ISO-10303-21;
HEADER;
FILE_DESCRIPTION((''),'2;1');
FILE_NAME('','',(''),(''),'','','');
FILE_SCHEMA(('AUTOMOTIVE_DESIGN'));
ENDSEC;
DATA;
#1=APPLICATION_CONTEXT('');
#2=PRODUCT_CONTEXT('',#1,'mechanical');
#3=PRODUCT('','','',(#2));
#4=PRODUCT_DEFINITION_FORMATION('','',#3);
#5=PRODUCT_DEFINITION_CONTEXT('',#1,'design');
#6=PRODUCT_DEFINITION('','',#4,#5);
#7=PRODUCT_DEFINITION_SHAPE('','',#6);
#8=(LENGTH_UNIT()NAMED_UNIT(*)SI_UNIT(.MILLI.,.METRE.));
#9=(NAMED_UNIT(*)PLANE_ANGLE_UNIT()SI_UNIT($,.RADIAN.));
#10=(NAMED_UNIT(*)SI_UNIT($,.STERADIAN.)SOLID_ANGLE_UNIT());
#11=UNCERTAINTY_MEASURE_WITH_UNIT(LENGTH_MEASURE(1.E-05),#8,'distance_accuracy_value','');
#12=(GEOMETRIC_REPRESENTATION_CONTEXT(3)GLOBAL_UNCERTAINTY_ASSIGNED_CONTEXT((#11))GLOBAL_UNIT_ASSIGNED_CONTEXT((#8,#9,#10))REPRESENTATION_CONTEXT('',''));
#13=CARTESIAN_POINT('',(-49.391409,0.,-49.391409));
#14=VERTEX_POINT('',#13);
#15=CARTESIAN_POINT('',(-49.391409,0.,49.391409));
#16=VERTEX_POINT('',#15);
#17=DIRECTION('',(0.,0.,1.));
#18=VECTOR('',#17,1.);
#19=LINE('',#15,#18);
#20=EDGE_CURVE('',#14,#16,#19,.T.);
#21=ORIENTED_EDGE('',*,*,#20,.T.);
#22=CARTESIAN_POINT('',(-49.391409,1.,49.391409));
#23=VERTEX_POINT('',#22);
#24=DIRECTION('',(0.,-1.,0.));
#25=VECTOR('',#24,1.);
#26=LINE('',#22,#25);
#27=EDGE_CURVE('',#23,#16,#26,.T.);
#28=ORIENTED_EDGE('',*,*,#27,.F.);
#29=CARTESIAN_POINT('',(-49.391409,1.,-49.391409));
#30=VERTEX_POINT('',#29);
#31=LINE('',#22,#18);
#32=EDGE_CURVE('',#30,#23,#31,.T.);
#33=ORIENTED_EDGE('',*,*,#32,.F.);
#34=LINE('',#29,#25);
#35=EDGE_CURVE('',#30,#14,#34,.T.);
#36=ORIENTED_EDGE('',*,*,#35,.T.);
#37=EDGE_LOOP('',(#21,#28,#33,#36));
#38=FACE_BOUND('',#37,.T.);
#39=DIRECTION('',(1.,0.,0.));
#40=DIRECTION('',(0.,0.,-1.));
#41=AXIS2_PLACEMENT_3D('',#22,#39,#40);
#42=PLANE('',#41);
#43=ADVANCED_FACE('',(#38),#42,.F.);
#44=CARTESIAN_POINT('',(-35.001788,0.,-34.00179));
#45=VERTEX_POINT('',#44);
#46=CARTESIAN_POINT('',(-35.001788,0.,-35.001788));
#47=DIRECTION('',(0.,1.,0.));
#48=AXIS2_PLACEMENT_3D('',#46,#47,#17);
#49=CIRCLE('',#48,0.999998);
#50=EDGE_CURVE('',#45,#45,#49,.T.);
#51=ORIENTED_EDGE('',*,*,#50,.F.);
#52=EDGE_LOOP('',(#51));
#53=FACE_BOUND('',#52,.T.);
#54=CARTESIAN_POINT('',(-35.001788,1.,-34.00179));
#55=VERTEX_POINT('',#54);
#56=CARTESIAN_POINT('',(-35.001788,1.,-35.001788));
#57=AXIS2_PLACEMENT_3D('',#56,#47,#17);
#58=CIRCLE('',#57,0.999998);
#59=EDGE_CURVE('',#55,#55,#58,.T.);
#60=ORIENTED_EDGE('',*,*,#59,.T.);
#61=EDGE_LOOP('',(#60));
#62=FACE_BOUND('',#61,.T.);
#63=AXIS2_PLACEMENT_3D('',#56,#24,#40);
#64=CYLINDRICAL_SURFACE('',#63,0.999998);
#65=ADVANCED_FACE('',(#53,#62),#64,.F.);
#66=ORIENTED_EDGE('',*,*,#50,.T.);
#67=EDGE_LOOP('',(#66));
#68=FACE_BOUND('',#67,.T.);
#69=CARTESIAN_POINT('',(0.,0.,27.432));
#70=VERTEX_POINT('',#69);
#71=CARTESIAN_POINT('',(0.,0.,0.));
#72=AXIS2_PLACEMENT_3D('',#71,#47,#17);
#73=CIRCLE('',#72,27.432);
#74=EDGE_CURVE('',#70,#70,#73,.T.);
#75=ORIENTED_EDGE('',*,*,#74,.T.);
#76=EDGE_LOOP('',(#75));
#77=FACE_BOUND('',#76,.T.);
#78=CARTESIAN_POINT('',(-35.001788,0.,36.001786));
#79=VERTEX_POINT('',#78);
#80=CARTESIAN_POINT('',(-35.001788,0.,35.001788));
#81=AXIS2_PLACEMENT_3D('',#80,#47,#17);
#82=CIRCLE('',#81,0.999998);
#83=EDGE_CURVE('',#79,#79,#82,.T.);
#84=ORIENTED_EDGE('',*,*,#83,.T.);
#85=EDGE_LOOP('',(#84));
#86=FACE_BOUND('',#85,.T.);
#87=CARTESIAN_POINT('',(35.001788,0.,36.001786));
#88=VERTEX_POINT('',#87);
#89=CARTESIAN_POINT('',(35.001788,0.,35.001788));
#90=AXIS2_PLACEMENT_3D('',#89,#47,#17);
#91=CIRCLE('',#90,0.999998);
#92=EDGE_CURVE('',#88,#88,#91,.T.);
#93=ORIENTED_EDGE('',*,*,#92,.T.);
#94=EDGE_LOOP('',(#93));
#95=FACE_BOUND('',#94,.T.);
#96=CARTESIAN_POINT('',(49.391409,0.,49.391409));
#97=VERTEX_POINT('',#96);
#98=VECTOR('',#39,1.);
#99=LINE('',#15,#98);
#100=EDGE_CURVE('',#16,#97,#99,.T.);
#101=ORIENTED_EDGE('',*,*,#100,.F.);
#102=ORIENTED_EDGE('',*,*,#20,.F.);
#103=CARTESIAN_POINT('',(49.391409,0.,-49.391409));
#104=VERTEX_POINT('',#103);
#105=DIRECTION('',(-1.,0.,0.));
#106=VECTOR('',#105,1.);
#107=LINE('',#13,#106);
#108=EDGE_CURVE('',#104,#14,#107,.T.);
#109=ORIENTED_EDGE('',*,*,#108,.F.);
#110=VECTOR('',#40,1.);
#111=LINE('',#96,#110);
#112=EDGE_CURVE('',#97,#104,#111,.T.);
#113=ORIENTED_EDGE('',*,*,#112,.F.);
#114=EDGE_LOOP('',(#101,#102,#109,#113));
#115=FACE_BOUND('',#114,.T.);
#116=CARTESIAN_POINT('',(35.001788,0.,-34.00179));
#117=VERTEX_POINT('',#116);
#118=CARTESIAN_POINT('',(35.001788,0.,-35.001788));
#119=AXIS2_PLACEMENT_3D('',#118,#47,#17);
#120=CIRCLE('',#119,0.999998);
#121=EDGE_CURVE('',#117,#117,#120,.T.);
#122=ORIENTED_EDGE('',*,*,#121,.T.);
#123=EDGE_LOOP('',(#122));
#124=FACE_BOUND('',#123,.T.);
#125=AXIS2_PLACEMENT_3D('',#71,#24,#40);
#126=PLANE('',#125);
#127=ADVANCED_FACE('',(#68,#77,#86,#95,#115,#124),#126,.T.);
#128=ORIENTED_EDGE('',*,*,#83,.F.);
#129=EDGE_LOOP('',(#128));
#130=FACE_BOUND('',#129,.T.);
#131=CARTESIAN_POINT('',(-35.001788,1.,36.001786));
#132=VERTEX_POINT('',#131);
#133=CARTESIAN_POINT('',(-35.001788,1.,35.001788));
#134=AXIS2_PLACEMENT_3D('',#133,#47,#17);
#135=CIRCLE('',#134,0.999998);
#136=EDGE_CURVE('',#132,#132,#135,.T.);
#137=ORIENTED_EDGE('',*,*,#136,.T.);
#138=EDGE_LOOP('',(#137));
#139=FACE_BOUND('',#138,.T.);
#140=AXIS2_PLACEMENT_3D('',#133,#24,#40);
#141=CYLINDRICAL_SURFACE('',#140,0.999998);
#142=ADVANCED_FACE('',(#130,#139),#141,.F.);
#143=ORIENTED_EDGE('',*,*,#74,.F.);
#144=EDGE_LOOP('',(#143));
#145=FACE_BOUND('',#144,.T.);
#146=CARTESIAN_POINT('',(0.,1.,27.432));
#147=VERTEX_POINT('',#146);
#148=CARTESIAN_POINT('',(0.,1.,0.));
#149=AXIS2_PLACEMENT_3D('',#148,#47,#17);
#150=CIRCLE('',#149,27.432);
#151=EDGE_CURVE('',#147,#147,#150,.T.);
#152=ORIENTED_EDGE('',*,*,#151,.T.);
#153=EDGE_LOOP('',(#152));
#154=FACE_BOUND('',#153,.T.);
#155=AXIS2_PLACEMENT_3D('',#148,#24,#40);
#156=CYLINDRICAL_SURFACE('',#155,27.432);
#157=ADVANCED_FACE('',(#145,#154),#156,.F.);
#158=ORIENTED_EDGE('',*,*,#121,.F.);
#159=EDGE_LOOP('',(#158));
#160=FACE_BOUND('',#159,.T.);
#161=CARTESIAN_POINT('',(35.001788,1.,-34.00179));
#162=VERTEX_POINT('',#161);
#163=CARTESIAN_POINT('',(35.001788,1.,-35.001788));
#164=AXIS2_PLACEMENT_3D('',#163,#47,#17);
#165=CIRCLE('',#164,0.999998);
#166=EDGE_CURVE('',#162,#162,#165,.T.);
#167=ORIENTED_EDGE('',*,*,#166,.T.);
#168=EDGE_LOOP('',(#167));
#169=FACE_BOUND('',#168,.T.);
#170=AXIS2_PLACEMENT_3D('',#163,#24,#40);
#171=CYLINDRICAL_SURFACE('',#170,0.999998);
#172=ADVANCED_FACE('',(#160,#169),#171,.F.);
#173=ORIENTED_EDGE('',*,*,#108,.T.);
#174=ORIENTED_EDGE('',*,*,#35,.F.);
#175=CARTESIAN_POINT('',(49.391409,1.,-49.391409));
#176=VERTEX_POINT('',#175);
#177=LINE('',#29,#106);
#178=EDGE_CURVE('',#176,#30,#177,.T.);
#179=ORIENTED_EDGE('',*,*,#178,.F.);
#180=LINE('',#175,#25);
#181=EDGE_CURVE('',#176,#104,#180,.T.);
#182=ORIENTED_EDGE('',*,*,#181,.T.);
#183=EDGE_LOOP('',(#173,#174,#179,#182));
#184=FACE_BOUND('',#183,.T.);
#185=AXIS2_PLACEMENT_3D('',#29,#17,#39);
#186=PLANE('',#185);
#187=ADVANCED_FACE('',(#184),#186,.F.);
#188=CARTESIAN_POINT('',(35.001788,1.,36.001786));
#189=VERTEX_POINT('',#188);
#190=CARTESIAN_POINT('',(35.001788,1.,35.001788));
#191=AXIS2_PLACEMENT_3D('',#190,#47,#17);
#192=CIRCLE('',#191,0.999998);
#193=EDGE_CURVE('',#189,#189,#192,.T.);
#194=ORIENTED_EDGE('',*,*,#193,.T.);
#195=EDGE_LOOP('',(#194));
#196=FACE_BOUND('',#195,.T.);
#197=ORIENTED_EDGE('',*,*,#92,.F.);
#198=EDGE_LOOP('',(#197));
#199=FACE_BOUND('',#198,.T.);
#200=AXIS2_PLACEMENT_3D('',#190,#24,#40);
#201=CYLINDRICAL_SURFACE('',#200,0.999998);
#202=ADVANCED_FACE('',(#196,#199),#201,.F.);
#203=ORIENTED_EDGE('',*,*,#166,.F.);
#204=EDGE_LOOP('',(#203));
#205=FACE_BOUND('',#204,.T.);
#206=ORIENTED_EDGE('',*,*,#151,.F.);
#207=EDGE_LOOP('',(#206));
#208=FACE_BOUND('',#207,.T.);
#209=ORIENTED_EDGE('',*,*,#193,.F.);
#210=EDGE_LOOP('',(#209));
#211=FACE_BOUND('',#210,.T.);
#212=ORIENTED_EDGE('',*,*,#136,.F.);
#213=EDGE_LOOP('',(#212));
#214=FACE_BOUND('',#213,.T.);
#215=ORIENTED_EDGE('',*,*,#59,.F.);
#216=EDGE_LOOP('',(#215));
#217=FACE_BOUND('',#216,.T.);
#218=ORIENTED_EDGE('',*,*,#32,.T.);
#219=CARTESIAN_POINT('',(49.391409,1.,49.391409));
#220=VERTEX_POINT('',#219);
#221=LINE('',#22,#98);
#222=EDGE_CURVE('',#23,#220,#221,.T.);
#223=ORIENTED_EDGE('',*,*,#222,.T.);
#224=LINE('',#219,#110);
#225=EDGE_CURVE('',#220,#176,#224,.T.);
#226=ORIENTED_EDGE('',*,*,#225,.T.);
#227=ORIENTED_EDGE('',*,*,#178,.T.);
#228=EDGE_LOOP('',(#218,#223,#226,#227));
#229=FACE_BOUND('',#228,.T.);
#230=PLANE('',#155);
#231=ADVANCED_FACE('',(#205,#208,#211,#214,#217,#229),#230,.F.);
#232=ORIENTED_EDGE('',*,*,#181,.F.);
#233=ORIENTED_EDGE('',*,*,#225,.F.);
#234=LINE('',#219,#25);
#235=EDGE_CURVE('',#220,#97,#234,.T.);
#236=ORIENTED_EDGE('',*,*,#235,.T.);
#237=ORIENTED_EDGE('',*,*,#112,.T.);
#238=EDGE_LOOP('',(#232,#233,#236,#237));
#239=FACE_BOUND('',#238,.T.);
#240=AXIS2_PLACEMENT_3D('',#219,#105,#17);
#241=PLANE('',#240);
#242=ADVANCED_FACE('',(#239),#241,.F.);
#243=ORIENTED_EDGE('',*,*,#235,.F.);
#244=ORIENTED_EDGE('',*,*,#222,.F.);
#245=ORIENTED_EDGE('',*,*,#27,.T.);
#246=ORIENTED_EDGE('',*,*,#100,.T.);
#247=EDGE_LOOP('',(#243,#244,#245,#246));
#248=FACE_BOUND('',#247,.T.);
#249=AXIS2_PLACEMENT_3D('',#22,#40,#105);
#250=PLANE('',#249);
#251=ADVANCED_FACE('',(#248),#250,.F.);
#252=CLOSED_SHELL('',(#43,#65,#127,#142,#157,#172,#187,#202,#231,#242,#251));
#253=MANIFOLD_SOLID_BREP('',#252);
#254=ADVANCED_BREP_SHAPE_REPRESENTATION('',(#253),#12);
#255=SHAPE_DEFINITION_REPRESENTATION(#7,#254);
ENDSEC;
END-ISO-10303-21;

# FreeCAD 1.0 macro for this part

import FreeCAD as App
import Part
import Sketcher

V = App.Vector
Q = App.Units.Quantity

doc = App.newDocument("Part")
body = doc.addObject("PartDesign::Body", "Body")

# Sketch on XZ plane
sketch1 = doc.addObject("Sketcher::SketchObject", "Sketch")
body.addObject(sketch1)
sketch1.AttachmentSupport = (doc.XZ_Plane, [""])
sketch1.MapMode = "FlatFace"
sketch1.addGeometry([
    Part.LineSegment(V(-49, -49, 0), V(-49, 49, 0)),
    Part.LineSegment(V(-49, 49, 0), V(49, 49, 0)),
    Part.LineSegment(V(49, 49, 0), V(49, -49, 0)),
    Part.LineSegment(V(49, -49, 0), V(-49, -49, 0)),
], False)
sketch1.addConstraint([
    Sketcher.Constraint("Coincident", 0, 2, 1, 1),
    Sketcher.Constraint("Coincident", 1, 2, 2, 1),
    Sketcher.Constraint("Coincident", 2, 2, 3, 1),
    Sketcher.Constraint("Coincident", 3, 2, 0, 1),
    Sketcher.Constraint("Vertical", 0),
    Sketcher.Constraint("Horizontal", 1),
    Sketcher.Constraint("Vertical", 2),
    Sketcher.Constraint("Horizontal", 3),
    Sketcher.Constraint("Symmetric", 0, 2, 2, 2, -1, 1),
    Sketcher.Constraint("Equal", 3, 0),
    Sketcher.Constraint("DistanceX", 1, 1, 1, 2, Q("98.782817 mm")),
])
pad1 = doc.addObject("PartDesign::Pad", "Pad")
body.addObject(pad1)
pad1.Profile = sketch1
pad1.Length = 1
pad1.Reversed = True

# Sketch on XZ plane
sketch2 = doc.addObject("Sketcher::SketchObject", "Sketch001")
body.addObject(sketch2)
sketch2.AttachmentSupport = (doc.XZ_Plane, [""])
sketch2.MapMode = "FlatFace"
sketch2.addGeometry([
    Part.Circle(V(35, -35, 0), V(0, 0, 1), 1),
    Part.Circle(V(35, 35, 0), V(0, 0, 1), 1),
    Part.Circle(V(-35, 35, 0), V(0, 0, 1), 1),
    Part.Circle(V(-35, -35, 0), V(0, 0, 1), 1),
], False)
sketch2.addConstraint([
    Sketcher.Constraint("Equal", 0, 1),
    Sketcher.Constraint("Equal", 1, 2),
    Sketcher.Constraint("Equal", 2, 3),
    Sketcher.Constraint("Symmetric", 0, 3, 2, 3, -1, 1),
    Sketcher.Constraint("Symmetric", 1, 3, 3, 3, -1, 1),
    Sketcher.Constraint("Symmetric", 1, 3, 2, 3, -2),
    Sketcher.Constraint("Diameter", 0, Q("1.999996 mm")),
    Sketcher.Constraint("DistanceX", -1, 1, 0, 3, Q("35.001788 mm")),
    Sketcher.Constraint("DistanceY", 0, 3, -1, 1, Q("35.001788 mm")),
])
pocket1 = doc.addObject("PartDesign::Pocket", "Pocket")
body.addObject(pocket1)
pocket1.Profile = sketch2
pocket1.Type = "ThroughAll"

# Sketch on XZ plane
sketch3 = doc.addObject("Sketcher::SketchObject", "Sketch002")
body.addObject(sketch3)
sketch3.AttachmentSupport = (doc.XZ_Plane, [""])
sketch3.MapMode = "FlatFace"
sketch3.addGeometry(Part.Circle(V(0, 0, 0), V(0, 0, 1), 27), False)
sketch3.addConstraint([
    Sketcher.Constraint("Coincident", 0, 3, -1, 1),
    Sketcher.Constraint("Diameter", 0, Q("54.864 mm")),
])
pocket2 = doc.addObject("PartDesign::Pocket", "Pocket001")
body.addObject(pocket2)
pocket2.Profile = sketch3
pocket2.Type = "ThroughAll"

doc.recompute()
